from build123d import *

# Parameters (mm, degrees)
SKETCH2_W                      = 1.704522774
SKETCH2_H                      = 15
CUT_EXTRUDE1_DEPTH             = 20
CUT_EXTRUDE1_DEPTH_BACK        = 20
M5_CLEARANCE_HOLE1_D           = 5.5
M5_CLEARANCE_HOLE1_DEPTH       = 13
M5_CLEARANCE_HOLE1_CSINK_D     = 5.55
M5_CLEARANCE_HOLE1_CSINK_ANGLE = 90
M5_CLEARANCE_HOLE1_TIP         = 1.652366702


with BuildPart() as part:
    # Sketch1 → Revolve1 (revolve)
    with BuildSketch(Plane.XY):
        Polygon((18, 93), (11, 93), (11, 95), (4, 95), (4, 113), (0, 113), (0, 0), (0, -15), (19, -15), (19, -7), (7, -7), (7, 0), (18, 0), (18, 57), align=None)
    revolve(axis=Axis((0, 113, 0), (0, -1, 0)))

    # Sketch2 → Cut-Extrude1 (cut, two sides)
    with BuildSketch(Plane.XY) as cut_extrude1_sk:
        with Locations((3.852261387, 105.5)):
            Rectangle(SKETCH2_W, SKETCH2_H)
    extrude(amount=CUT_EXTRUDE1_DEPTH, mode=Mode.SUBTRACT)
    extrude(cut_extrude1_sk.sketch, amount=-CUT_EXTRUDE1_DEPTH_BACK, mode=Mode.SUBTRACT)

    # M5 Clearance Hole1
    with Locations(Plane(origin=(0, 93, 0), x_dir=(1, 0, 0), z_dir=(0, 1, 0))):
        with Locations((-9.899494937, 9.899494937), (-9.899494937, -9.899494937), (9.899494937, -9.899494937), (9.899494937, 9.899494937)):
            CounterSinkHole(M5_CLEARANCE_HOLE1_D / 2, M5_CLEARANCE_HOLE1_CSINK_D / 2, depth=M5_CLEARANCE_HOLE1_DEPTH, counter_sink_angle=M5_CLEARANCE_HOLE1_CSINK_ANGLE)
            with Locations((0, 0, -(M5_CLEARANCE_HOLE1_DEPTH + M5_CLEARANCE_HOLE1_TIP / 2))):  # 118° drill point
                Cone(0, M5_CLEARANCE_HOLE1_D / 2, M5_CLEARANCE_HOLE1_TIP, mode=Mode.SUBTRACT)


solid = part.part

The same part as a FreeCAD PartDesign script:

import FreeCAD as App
import Part
import Sketcher
Q = App.Units.Quantity

doc = App.newDocument("Part")
params = doc.addObject("Spreadsheet::Sheet", "Params")
for row, (alias, value) in enumerate([
    ("sketch1_width", "7 mm"),
    ("sketch1_width2", "4 mm"),
    ("sketch1_width3", "19 mm"),
    ("sketch1_width4", "12 mm"),
    ("sketch1_height", "2 mm"),
    ("revolution_angle", "360 deg"),
    ("sketch2_height", "15 mm"),
    ("sketch3_diameter", "5.5 mm"),
    ("hole_diameter", "5.5 mm"),
    ("hole_depth", "13 mm"),
    ("hole_csink_diameter", "5.55 mm"),
], start=1):
    params.set(f"A{row}", alias)
    params.set(f"B{row}", "=" + value)
    params.setAlias(f"B{row}", alias)

body = doc.addObject("PartDesign::Body", "Body")

sketch1 = doc.addObject("Sketcher::SketchObject", "Sketch")
body.addObject(sketch1)
sketch1.AttachmentSupport = (doc.XY_Plane, [""])
sketch1.MapMode = "FlatFace"
sketch1.addGeometry([
    Part.LineSegment(App.Vector(18, 93, 0), App.Vector(11, 93, 0)),
    Part.LineSegment(App.Vector(11, 93, 0), App.Vector(11, 95, 0)),
    Part.LineSegment(App.Vector(11, 95, 0), App.Vector(4, 95, 0)),
    Part.LineSegment(App.Vector(4, 95, 0), App.Vector(4, 113, 0)),
    Part.LineSegment(App.Vector(4, 113, 0), App.Vector(0, 113, 0)),
    Part.LineSegment(App.Vector(0, 113, 0), App.Vector(0, -15, 0)),
    Part.LineSegment(App.Vector(0, -15, 0), App.Vector(19, -15, 0)),
    Part.LineSegment(App.Vector(19, -15, 0), App.Vector(19, -7, 0)),
    Part.LineSegment(App.Vector(19, -7, 0), App.Vector(7, -7, 0)),
    Part.LineSegment(App.Vector(7, -7, 0), App.Vector(7, 0, 0)),
    Part.LineSegment(App.Vector(7, 0, 0), App.Vector(18, 0, 0)),
    Part.LineSegment(App.Vector(18, 0, 0), App.Vector(18, 93, 0)),
], False)
sketch1.addConstraint([
    Sketcher.Constraint("Coincident", 0, 2, 1, 1),
    Sketcher.Constraint("Coincident", 1, 2, 2, 1),
    Sketcher.Constraint("Coincident", 2, 2, 3, 1),
    Sketcher.Constraint("Coincident", 3, 2, 4, 1),
    Sketcher.Constraint("Coincident", 4, 2, 5, 1),
    Sketcher.Constraint("Coincident", 5, 2, 6, 1),
    Sketcher.Constraint("Coincident", 6, 2, 7, 1),
    Sketcher.Constraint("Coincident", 7, 2, 8, 1),
    Sketcher.Constraint("Coincident", 8, 2, 9, 1),
    Sketcher.Constraint("Coincident", 9, 2, 10, 1),
    Sketcher.Constraint("Coincident", 10, 2, 11, 1),
    Sketcher.Constraint("Coincident", 11, 2, 0, 1),
    Sketcher.Constraint("Horizontal", 0),
    Sketcher.Constraint("Vertical", 1),
    Sketcher.Constraint("Horizontal", 2),
    Sketcher.Constraint("Vertical", 3),
    Sketcher.Constraint("Horizontal", 4),
    Sketcher.Constraint("Vertical", 5),
    Sketcher.Constraint("Horizontal", 6),
    Sketcher.Constraint("Vertical", 7),
    Sketcher.Constraint("Horizontal", 8),
    Sketcher.Constraint("Vertical", 9),
    Sketcher.Constraint("Horizontal", 10),
    Sketcher.Constraint("Vertical", 11),
    Sketcher.Constraint("PointOnObject", 4, 2, -2),
    Sketcher.Constraint("PointOnObject", 9, 2, -1),
    Sketcher.Constraint("Equal", 0, 2),
    Sketcher.Constraint("Equal", 2, 9),
    Sketcher.Constraint("DistanceX", 0, 2, 0, 1, Q("7 mm")),
    Sketcher.Constraint("DistanceX", 4, 2, 4, 1, Q("4 mm")),
    Sketcher.Constraint("DistanceX", 6, 1, 6, 2, Q("19 mm")),
    Sketcher.Constraint("DistanceX", 8, 2, 8, 1, Q("12 mm")),
    Sketcher.Constraint("DistanceY", 1, 1, 1, 2, Q("2 mm")),
    Sketcher.Constraint("DistanceY", 3, 1, 3, 2, Q("18 mm")),
    Sketcher.Constraint("DistanceY", 5, 2, 5, 1, Q("128 mm")),
    Sketcher.Constraint("DistanceY", 7, 1, 7, 2, Q("8 mm")),
])
sketch1.setExpression("Constraints[28]", "Params.sketch1_width")
sketch1.setExpression("Constraints[29]", "Params.sketch1_width2")
sketch1.setExpression("Constraints[30]", "Params.sketch1_width3")
sketch1.setExpression("Constraints[31]", "Params.sketch1_width4")
sketch1.setExpression("Constraints[32]", "Params.sketch1_height")
revolution = doc.addObject("PartDesign::Revolution", "Revolution")
body.addObject(revolution)
revolution.Profile = sketch1
revolution.ReferenceAxis = (sketch1, ["V_Axis"])
revolution.setExpression("Angle", "Params.revolution_angle")

sketch2 = doc.addObject("Sketcher::SketchObject", "Sketch001")
body.addObject(sketch2)
sketch2.AttachmentSupport = (doc.XY_Plane, [""])
sketch2.MapMode = "FlatFace"
sketch2.addGeometry([
    Part.LineSegment(App.Vector(3, 113, 0), App.Vector(3, 98, 0)),
    Part.LineSegment(App.Vector(3, 98, 0), App.Vector(4.7, 98, 0)),
    Part.LineSegment(App.Vector(4.7, 98, 0), App.Vector(4.7, 113, 0)),
    Part.LineSegment(App.Vector(4.7, 113, 0), App.Vector(3, 113, 0)),
], False)
sketch2.addConstraint([
    Sketcher.Constraint("Coincident", 0, 2, 1, 1),
    Sketcher.Constraint("Coincident", 1, 2, 2, 1),
    Sketcher.Constraint("Coincident", 2, 2, 3, 1),
    Sketcher.Constraint("Coincident", 3, 2, 0, 1),
    Sketcher.Constraint("Vertical", 0),
    Sketcher.Constraint("Horizontal", 1),
    Sketcher.Constraint("Vertical", 2),
    Sketcher.Constraint("Horizontal", 3),
    Sketcher.Constraint("DistanceY", 0, 2, 0, 1, Q("15 mm")),
    Sketcher.Constraint("DistanceX", -1, 1, 0, 2, Q("3 mm")),
    Sketcher.Constraint("DistanceY", -1, 1, 0, 2, Q("98 mm")),
    Sketcher.Constraint("DistanceX", 1, 1, 1, 2, Q("1.704523 mm")),
])
sketch2.setExpression("Constraints[8]", "Params.sketch2_height")
pocket1 = doc.addObject("PartDesign::Pocket", "Pocket")
body.addObject(pocket1)
pocket1.Profile = sketch2
pocket1.Type = "ThroughAll"
pocket1.Midplane = True

sketch3 = doc.addObject("Sketcher::SketchObject", "Sketch002")
body.addObject(sketch3)
sketch3.AttachmentSupport = (doc.XZ_Plane, [""])
sketch3.MapMode = "FlatFace"
sketch3.AttachmentOffset = App.Placement(App.Vector(0, 0, -93), App.Rotation())
sketch3.addGeometry([
    Part.Circle(App.Vector(-9.9, -9.9, 0), App.Vector(0, 0, 1), 2.8),
    Part.Circle(App.Vector(-9.9, 9.9, 0), App.Vector(0, 0, 1), 2.8),
    Part.Circle(App.Vector(9.9, 9.9, 0), App.Vector(0, 0, 1), 2.8),
    Part.Circle(App.Vector(9.9, -9.9, 0), App.Vector(0, 0, 1), 2.8),
], False)
sketch3.addConstraint([
    Sketcher.Constraint("Equal", 0, 1),
    Sketcher.Constraint("Equal", 1, 2),
    Sketcher.Constraint("Equal", 2, 3),
    Sketcher.Constraint("Symmetric", 0, 3, 2, 3, -1, 1),
    Sketcher.Constraint("Symmetric", 1, 3, 3, 3, -1, 1),
    Sketcher.Constraint("Symmetric", 1, 3, 2, 3, -2),
    Sketcher.Constraint("Diameter", 0, Q("5.5 mm")),
    Sketcher.Constraint("DistanceY", 0, 3, 1, 3, Q("19.79899 mm")),
    Sketcher.Constraint("DistanceX", 1, 3, 2, 3, Q("19.79899 mm")),
])
sketch3.setExpression("Constraints[6]", "Params.sketch3_diameter")
doc.recompute()
hole = doc.addObject("PartDesign::Hole", "Hole")
body.addObject(hole)
hole.Profile = sketch3
hole.ThreadType = "None"
hole.setExpression("Diameter", "Params.hole_diameter")
hole.DepthType = "Dimension"
hole.setExpression("Depth", "Params.hole_depth")
hole.DrillPoint = "Angled"
hole.DrillPointAngle = 118
hole.HoleCutType = "Countersink"
hole.setExpression("HoleCutDiameter", "Params.hole_csink_diameter")
hole.HoleCutCountersinkAngle = 90
hole.Reversed = True

doc.recompute()
